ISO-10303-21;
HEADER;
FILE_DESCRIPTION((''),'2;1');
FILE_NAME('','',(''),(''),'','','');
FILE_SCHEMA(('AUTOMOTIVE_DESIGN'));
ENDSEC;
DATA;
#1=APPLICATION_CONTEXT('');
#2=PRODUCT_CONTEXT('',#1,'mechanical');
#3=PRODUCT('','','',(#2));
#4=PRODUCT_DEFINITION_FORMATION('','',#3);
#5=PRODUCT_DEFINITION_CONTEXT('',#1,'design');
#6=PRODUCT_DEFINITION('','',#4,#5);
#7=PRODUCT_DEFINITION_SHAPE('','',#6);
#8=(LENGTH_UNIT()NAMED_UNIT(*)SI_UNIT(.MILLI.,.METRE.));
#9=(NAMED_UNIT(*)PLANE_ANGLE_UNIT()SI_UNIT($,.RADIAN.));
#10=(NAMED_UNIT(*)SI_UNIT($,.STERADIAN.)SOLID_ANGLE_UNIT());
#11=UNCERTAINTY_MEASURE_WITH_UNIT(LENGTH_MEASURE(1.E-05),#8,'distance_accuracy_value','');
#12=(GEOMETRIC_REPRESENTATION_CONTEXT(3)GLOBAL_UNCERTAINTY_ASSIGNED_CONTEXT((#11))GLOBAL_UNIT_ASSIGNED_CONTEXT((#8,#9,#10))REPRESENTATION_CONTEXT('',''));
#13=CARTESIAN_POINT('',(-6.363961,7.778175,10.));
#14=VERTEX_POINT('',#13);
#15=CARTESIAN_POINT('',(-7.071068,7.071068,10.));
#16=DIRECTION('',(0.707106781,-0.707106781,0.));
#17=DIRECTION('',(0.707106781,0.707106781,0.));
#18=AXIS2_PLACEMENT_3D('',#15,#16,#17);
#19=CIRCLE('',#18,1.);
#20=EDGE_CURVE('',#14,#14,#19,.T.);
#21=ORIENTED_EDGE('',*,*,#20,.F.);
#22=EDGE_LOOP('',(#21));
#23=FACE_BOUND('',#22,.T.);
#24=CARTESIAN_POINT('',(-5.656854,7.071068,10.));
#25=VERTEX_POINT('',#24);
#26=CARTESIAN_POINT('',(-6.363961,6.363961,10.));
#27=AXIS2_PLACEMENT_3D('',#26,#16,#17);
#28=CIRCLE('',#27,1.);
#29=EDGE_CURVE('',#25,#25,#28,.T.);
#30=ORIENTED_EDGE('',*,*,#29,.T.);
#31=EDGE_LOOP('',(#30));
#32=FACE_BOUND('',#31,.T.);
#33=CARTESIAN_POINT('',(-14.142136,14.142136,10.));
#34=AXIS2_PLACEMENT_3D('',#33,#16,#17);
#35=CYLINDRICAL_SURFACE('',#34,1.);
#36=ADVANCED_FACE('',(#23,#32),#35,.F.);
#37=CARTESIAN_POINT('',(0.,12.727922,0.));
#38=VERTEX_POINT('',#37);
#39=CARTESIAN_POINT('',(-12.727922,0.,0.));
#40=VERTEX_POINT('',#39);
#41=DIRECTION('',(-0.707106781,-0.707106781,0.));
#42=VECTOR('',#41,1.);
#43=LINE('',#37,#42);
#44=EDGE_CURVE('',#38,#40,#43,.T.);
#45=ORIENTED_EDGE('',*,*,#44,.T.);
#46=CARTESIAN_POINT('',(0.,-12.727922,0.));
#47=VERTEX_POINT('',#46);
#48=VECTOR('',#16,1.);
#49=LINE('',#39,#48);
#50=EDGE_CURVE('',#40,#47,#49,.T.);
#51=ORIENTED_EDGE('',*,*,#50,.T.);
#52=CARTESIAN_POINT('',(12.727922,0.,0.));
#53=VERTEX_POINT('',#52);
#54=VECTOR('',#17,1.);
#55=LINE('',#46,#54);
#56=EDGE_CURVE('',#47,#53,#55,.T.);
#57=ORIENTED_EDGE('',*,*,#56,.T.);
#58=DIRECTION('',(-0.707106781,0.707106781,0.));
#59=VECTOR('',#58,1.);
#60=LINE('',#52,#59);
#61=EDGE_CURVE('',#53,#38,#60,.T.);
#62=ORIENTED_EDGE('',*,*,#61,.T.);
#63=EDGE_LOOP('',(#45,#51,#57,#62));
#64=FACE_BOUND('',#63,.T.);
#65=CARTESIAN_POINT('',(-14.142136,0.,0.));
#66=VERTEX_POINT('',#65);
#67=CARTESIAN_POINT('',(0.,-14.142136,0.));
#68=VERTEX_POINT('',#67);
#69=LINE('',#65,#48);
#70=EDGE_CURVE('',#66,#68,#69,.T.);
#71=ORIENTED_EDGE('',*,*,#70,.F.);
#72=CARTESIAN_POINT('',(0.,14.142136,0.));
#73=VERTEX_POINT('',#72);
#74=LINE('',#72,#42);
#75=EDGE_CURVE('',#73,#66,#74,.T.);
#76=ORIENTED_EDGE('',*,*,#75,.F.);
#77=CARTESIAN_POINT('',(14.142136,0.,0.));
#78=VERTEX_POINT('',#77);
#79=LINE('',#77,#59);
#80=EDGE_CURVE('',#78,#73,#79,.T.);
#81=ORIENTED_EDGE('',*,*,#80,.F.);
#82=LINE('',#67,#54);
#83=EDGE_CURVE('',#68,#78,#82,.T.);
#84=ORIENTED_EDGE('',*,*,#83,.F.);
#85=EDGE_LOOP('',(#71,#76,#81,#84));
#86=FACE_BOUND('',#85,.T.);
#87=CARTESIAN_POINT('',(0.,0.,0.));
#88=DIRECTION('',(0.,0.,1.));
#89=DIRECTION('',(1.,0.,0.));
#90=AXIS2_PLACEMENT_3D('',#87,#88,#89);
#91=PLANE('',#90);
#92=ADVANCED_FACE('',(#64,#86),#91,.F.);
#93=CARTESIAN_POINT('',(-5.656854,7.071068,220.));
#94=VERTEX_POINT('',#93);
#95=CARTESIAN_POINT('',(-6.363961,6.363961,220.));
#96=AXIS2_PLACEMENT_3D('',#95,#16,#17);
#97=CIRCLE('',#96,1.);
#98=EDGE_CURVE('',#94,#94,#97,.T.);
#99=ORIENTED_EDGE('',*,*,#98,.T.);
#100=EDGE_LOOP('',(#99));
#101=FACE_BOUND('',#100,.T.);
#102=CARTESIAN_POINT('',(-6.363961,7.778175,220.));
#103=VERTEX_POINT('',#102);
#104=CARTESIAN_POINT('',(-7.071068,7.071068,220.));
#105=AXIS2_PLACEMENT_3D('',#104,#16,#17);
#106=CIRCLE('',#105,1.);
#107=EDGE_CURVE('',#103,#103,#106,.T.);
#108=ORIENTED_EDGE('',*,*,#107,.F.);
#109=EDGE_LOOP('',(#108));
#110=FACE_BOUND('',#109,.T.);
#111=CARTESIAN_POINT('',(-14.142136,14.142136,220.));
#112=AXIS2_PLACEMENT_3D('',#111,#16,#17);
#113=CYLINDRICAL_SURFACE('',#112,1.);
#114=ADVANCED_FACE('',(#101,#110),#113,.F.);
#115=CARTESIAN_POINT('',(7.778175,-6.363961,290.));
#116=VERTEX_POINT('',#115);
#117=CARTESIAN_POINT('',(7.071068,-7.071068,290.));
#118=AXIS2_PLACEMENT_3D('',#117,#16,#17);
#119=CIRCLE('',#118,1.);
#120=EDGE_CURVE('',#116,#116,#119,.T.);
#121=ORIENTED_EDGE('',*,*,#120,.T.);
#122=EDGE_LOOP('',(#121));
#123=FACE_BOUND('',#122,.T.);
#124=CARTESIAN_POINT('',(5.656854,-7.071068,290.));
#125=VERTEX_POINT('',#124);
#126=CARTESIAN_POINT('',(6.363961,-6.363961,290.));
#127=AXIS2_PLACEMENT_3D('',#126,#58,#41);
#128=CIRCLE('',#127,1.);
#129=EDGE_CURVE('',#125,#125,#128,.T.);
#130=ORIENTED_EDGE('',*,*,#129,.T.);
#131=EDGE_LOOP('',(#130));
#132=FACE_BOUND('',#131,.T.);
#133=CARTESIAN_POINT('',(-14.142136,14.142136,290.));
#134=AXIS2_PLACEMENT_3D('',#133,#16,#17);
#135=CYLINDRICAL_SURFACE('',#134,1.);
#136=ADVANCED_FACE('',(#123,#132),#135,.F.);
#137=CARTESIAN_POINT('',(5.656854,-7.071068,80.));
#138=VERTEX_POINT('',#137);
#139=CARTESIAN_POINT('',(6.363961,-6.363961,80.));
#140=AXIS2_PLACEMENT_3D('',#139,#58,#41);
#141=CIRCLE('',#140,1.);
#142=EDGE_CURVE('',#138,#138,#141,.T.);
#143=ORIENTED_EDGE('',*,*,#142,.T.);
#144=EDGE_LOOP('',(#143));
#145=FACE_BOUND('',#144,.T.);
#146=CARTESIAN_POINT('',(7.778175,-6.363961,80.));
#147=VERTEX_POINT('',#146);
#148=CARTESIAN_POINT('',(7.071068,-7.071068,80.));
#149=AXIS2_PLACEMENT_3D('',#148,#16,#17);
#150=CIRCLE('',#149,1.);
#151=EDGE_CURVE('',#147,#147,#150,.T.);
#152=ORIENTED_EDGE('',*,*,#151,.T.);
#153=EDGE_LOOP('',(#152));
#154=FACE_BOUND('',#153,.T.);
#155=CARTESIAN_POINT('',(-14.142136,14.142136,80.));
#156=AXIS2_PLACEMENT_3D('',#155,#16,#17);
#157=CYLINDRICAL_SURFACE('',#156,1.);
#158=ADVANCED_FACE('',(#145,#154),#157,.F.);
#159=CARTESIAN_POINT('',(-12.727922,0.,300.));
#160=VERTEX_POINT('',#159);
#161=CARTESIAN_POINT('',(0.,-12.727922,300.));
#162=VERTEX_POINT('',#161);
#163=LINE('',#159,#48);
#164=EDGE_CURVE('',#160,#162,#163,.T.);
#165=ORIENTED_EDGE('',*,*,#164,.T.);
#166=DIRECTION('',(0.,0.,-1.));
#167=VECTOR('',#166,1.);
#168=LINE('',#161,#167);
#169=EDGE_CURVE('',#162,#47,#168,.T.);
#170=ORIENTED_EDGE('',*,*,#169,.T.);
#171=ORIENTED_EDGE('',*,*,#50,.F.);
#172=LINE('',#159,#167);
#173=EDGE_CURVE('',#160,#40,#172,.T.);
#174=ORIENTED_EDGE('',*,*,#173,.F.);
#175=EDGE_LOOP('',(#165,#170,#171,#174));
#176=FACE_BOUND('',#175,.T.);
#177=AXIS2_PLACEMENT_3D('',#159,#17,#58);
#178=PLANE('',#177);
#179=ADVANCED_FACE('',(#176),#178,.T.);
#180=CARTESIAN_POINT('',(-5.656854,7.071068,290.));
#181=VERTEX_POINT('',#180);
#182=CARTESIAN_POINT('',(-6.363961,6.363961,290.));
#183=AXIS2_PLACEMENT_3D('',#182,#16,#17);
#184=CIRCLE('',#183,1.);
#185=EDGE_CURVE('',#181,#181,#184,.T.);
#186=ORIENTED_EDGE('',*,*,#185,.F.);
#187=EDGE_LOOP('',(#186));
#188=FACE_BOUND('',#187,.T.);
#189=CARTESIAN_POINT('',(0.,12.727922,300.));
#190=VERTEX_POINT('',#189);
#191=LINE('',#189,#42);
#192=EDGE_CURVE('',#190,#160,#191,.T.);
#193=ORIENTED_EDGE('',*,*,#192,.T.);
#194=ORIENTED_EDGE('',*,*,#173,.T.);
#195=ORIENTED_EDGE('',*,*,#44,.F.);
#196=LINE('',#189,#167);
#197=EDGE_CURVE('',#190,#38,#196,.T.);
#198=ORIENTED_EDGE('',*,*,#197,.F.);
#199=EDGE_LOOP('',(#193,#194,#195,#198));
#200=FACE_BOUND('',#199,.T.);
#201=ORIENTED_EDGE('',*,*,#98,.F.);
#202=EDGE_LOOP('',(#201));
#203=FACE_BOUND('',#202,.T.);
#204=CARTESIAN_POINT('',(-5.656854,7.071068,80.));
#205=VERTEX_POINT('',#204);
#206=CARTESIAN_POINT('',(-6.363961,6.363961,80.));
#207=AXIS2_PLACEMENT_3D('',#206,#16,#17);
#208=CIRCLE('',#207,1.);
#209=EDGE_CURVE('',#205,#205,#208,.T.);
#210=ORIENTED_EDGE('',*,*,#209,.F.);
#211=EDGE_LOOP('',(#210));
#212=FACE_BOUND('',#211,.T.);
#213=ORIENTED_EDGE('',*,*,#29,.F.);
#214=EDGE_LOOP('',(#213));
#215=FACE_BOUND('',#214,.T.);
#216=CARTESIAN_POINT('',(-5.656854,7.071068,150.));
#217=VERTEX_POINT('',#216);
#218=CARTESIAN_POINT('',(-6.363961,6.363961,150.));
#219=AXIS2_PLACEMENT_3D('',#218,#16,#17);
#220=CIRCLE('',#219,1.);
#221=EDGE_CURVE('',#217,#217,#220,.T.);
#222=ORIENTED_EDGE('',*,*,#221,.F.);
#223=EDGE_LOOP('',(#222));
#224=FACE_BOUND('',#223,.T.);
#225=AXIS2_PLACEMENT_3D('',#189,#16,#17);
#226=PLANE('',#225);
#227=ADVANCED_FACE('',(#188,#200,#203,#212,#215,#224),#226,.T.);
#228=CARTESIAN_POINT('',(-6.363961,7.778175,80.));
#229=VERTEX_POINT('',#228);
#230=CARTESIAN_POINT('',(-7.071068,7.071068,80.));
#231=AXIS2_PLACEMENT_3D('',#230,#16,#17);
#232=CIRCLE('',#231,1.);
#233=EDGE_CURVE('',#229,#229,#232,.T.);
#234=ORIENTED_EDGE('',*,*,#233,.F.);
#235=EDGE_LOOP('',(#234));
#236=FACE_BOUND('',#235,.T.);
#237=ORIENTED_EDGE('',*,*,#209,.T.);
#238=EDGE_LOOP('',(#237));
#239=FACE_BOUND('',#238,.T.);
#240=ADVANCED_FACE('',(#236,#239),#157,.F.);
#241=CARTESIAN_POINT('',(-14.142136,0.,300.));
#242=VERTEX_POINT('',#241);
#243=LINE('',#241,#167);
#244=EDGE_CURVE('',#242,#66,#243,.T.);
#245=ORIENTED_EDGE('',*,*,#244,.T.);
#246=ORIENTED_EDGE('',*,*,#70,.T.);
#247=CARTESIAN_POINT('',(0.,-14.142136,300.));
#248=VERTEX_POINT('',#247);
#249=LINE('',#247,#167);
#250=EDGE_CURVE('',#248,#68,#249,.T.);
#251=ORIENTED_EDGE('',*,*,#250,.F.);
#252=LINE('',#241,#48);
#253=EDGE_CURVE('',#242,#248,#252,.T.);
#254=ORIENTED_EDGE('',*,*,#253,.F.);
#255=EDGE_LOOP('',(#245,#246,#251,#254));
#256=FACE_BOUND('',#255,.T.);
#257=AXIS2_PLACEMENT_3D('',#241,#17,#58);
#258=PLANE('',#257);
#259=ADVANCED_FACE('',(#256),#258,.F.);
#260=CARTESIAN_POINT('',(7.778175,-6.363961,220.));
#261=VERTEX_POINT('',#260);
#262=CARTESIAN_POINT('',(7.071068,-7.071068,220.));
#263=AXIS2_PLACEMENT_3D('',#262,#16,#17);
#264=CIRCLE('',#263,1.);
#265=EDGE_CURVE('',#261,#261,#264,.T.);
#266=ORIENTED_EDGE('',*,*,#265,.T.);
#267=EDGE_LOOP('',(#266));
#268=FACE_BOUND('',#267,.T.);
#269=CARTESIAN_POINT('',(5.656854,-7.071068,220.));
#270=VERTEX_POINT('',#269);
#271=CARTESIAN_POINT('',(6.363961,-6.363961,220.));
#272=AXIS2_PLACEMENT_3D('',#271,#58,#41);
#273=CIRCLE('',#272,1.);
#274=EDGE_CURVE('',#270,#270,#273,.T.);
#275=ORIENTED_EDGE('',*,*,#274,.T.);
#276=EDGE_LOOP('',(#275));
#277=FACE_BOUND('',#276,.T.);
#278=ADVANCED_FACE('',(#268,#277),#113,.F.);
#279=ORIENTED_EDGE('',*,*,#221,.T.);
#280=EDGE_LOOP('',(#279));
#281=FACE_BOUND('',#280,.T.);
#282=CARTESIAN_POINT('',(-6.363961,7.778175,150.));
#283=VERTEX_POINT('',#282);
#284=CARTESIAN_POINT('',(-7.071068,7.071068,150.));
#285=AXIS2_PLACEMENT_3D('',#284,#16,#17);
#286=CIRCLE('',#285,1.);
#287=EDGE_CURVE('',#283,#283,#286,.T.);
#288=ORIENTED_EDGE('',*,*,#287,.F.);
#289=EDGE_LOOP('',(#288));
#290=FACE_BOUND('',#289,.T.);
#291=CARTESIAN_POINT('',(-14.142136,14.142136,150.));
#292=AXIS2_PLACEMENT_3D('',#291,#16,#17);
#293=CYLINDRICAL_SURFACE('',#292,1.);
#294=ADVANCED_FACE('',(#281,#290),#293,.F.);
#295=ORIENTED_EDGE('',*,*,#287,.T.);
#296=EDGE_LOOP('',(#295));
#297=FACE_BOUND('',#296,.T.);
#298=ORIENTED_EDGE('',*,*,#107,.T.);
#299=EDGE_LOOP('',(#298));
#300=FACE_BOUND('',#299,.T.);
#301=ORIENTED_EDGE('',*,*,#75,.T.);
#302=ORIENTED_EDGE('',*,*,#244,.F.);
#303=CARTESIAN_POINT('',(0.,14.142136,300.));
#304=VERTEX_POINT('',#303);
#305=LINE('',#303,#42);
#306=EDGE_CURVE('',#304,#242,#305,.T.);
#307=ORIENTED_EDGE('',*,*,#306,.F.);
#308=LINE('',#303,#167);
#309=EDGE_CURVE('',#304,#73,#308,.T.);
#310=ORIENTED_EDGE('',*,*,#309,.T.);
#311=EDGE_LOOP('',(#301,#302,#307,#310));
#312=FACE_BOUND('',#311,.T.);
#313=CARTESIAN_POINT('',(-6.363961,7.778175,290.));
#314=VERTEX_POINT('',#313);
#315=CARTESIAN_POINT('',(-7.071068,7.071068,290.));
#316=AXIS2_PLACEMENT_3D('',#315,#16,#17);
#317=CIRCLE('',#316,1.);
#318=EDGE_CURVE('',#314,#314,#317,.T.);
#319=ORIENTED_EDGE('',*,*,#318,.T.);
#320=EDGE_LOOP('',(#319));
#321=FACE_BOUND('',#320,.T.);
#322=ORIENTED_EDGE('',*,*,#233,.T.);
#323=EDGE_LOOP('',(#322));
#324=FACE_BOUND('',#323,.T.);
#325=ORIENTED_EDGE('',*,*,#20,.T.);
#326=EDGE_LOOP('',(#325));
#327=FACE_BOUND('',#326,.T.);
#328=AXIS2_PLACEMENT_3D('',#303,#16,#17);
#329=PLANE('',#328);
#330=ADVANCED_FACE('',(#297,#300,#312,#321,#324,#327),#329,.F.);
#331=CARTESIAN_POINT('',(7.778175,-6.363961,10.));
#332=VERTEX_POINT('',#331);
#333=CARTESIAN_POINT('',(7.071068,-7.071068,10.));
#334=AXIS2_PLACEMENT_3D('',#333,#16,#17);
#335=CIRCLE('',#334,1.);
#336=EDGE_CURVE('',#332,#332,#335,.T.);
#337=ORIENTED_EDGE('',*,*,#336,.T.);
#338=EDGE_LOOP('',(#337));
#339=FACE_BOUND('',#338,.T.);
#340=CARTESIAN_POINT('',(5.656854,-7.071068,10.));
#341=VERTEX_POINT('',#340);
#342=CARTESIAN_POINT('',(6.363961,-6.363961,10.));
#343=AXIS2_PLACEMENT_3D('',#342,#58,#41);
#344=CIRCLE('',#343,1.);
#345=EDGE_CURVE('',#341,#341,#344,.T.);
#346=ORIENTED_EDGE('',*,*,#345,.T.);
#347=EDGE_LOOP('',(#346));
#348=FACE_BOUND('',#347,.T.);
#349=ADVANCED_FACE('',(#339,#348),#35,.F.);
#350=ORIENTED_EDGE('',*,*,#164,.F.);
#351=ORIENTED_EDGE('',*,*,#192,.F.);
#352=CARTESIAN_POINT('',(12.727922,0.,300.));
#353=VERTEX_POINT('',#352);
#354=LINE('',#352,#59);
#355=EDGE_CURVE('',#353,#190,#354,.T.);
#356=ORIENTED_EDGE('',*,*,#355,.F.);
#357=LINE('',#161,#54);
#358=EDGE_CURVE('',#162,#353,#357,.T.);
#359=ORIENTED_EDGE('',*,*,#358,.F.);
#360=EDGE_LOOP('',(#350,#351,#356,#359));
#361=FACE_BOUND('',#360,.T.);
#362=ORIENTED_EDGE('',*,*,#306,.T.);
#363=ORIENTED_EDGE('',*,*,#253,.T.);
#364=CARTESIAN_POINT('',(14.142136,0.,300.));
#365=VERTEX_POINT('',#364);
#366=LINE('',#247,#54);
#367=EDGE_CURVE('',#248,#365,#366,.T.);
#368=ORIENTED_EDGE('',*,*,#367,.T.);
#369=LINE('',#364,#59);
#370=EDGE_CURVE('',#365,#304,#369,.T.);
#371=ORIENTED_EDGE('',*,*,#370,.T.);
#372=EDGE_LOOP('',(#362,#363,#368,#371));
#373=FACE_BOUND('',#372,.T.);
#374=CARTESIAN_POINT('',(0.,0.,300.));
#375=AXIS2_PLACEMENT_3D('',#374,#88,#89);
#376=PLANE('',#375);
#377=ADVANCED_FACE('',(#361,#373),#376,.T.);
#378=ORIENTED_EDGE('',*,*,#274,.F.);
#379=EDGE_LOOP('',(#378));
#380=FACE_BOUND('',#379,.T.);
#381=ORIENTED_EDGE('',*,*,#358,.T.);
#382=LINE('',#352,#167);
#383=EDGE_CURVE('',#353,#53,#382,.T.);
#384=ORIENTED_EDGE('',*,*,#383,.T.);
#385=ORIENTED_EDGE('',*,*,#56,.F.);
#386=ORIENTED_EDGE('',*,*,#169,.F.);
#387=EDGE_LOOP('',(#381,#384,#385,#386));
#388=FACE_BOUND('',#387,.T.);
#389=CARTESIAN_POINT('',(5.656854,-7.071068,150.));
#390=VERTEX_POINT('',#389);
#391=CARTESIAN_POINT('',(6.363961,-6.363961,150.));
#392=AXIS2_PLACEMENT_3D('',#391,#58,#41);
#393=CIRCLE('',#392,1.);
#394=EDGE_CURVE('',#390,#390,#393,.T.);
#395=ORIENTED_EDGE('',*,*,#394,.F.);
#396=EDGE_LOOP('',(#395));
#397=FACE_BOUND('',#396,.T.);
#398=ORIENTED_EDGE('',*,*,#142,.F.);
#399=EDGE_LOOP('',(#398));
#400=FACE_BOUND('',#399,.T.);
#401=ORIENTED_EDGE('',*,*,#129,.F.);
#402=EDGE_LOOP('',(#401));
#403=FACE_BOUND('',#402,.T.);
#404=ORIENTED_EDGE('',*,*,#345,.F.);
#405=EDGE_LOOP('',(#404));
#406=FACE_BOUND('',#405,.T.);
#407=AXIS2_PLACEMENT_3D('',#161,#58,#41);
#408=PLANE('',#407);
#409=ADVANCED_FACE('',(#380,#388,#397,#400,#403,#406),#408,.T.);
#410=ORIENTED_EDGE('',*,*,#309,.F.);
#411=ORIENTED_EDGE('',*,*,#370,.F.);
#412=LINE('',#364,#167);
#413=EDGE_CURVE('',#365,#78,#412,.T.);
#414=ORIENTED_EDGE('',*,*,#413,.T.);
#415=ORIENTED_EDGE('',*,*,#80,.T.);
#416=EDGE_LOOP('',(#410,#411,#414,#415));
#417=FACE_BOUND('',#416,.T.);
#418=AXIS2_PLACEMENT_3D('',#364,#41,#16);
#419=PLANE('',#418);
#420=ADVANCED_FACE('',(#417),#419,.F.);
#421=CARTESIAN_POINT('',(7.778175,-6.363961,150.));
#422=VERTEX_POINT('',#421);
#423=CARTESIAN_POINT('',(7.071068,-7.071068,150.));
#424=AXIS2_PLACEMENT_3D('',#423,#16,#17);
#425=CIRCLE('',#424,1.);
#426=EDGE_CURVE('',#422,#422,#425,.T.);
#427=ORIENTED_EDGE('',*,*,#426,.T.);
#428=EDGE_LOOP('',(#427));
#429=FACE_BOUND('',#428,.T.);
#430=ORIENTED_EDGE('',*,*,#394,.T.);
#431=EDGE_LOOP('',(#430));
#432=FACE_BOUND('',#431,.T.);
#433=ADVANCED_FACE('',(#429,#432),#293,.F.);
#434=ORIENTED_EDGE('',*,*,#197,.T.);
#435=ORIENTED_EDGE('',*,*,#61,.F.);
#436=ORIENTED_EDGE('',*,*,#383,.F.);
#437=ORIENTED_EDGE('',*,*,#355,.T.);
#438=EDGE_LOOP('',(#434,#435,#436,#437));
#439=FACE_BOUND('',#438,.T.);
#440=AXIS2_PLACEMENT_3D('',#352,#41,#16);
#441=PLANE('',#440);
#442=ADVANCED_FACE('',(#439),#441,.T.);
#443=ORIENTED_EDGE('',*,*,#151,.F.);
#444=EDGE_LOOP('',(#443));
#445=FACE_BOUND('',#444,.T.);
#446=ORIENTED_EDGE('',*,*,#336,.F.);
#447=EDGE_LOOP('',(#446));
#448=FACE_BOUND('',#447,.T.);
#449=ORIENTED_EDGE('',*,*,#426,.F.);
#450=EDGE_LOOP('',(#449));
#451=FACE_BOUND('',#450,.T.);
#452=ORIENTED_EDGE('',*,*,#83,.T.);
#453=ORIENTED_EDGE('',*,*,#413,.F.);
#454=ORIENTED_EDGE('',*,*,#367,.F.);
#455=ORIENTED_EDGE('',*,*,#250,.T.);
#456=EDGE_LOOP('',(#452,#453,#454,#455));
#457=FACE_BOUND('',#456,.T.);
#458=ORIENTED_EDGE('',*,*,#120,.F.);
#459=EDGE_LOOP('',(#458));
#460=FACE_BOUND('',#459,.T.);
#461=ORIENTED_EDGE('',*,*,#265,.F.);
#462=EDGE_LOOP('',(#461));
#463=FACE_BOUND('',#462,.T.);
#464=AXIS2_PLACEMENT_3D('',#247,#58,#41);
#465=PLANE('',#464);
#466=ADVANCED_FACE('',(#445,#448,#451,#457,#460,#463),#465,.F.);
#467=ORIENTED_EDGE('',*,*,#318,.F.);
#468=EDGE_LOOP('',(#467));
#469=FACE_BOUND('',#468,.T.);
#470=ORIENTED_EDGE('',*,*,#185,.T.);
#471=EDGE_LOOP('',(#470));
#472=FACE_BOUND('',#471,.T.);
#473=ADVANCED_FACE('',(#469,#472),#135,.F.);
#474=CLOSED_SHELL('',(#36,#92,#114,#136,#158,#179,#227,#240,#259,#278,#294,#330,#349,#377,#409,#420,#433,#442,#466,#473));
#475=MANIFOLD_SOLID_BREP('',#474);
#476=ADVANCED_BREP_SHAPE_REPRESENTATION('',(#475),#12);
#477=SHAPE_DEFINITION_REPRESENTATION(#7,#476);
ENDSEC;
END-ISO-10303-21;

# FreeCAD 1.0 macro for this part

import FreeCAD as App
import Part
import Sketcher

doc = App.newDocument("Part")
body = doc.addObject("PartDesign::Body", "Body")

# Sketch on XY plane
sketch1 = body.newObject("Sketcher::SketchObject", "Sketch")
sketch1.AttachmentSupport = (doc.getObject("XY_Plane"), [""])
sketch1.MapMode = "FlatFace"
sketch1.addGeometry(Part.LineSegment(App.Vector(14, 0, 0), App.Vector(0, 14, 0)), False)
sketch1.addGeometry(Part.LineSegment(App.Vector(0, 14, 0), App.Vector(-14, 0, 0)), False)
sketch1.addGeometry(Part.LineSegment(App.Vector(-14, 0, 0), App.Vector(0, -14, 0)), False)
sketch1.addGeometry(Part.LineSegment(App.Vector(0, -14, 0), App.Vector(14, 0, 0)), False)
sketch1.addGeometry(Part.LineSegment(App.Vector(0, 13, 0), App.Vector(13, 0, 0)), False)
sketch1.addGeometry(Part.LineSegment(App.Vector(13, 0, 0), App.Vector(0, -13, 0)), False)
sketch1.addGeometry(Part.LineSegment(App.Vector(0, -13, 0), App.Vector(-13, 0, 0)), False)
sketch1.addGeometry(Part.LineSegment(App.Vector(-13, 0, 0), App.Vector(0, 13, 0)), False)
sketch1.addConstraint(Sketcher.Constraint("Coincident", 0, 2, 1, 1))
sketch1.addConstraint(Sketcher.Constraint("Coincident", 1, 2, 2, 1))
sketch1.addConstraint(Sketcher.Constraint("Coincident", 2, 2, 3, 1))
sketch1.addConstraint(Sketcher.Constraint("Coincident", 3, 2, 0, 1))
sketch1.addConstraint(Sketcher.Constraint("Coincident", 4, 2, 5, 1))
sketch1.addConstraint(Sketcher.Constraint("Coincident", 5, 2, 6, 1))
sketch1.addConstraint(Sketcher.Constraint("Coincident", 6, 2, 7, 1))
sketch1.addConstraint(Sketcher.Constraint("Coincident", 7, 2, 4, 1))
sketch1.addConstraint(Sketcher.Constraint("Symmetric", 0, 2, 2, 2, -1, 1))
sketch1.addConstraint(Sketcher.Constraint("Symmetric", 1, 2, 3, 2, -1, 1))
sketch1.addConstraint(Sketcher.Constraint("Symmetric", 4, 2, 6, 2, -1, 1))
sketch1.addConstraint(Sketcher.Constraint("Symmetric", 5, 2, 7, 2, -1, 1))
sketch1.addConstraint(Sketcher.Constraint("PointOnObject", 0, 2, -2))
sketch1.addConstraint(Sketcher.Constraint("PointOnObject", 1, 2, -1))
sketch1.addConstraint(Sketcher.Constraint("PointOnObject", 4, 2, -1))
sketch1.addConstraint(Sketcher.Constraint("PointOnObject", 5, 2, -2))
sketch1.addConstraint(Sketcher.Constraint("Perpendicular", 0, 1))
sketch1.addConstraint(Sketcher.Constraint("Perpendicular", 3, 4))
sketch1.addConstraint(Sketcher.Constraint("Distance", 0, 20.0))
sketch1.addConstraint(Sketcher.Constraint("Distance", 4, 18.0))
pad1 = body.newObject("PartDesign::Pad", "Pad")
pad1.Profile = sketch1
pad1.Length = 300

# Sketch on an angled plane
sketch2 = body.newObject("Sketcher::SketchObject", "Sketch001")
sketch2.Placement = App.Placement(App.Vector(7.071068, -7.071068, 0), App.Rotation(App.Vector(0, 0, -1), App.Vector(0.707106781, 0.707106781, 0), App.Vector(0.707106781, -0.707106781, 0), "ZXY"))
sketch2.addGeometry(Part.Circle(App.Vector(-290, 0, 0), App.Vector(0, 0, 1), 1), False)
sketch2.addGeometry(Part.Circle(App.Vector(-220, 0, 0), App.Vector(0, 0, 1), 1), False)
sketch2.addGeometry(Part.Circle(App.Vector(-150, 0, 0), App.Vector(0, 0, 1), 1), False)
sketch2.addGeometry(Part.Circle(App.Vector(-80, 0, 0), App.Vector(0, 0, 1), 1), False)
sketch2.addGeometry(Part.Circle(App.Vector(-10, 0, 0), App.Vector(0, 0, 1), 1), False)
sketch2.addConstraint(Sketcher.Constraint("Equal", 0, 1))
sketch2.addConstraint(Sketcher.Constraint("Equal", 1, 2))
sketch2.addConstraint(Sketcher.Constraint("Equal", 2, 3))
sketch2.addConstraint(Sketcher.Constraint("Equal", 3, 4))
sketch2.addConstraint(Sketcher.Constraint("PointOnObject", 0, 3, -1))
sketch2.addConstraint(Sketcher.Constraint("PointOnObject", 1, 3, -1))
sketch2.addConstraint(Sketcher.Constraint("PointOnObject", 2, 3, -1))
sketch2.addConstraint(Sketcher.Constraint("PointOnObject", 3, 3, -1))
sketch2.addConstraint(Sketcher.Constraint("PointOnObject", 4, 3, -1))
sketch2.addConstraint(Sketcher.Constraint("Diameter", 0, 2.0))
sketch2.addConstraint(Sketcher.Constraint("DistanceX", 0, 3, -1, 1, 290.0))
sketch2.addConstraint(Sketcher.Constraint("DistanceX", 1, 3, -1, 1, 220.0))
sketch2.addConstraint(Sketcher.Constraint("DistanceX", 2, 3, -1, 1, 150.0))
sketch2.addConstraint(Sketcher.Constraint("DistanceX", 3, 3, -1, 1, 80.0))
sketch2.addConstraint(Sketcher.Constraint("DistanceX", 4, 3, -1, 1, 10.0))
pocket1 = body.newObject("PartDesign::Pocket", "Pocket")
pocket1.Profile = sketch2
pocket1.Type = "ThroughAll"

doc.recompute()
